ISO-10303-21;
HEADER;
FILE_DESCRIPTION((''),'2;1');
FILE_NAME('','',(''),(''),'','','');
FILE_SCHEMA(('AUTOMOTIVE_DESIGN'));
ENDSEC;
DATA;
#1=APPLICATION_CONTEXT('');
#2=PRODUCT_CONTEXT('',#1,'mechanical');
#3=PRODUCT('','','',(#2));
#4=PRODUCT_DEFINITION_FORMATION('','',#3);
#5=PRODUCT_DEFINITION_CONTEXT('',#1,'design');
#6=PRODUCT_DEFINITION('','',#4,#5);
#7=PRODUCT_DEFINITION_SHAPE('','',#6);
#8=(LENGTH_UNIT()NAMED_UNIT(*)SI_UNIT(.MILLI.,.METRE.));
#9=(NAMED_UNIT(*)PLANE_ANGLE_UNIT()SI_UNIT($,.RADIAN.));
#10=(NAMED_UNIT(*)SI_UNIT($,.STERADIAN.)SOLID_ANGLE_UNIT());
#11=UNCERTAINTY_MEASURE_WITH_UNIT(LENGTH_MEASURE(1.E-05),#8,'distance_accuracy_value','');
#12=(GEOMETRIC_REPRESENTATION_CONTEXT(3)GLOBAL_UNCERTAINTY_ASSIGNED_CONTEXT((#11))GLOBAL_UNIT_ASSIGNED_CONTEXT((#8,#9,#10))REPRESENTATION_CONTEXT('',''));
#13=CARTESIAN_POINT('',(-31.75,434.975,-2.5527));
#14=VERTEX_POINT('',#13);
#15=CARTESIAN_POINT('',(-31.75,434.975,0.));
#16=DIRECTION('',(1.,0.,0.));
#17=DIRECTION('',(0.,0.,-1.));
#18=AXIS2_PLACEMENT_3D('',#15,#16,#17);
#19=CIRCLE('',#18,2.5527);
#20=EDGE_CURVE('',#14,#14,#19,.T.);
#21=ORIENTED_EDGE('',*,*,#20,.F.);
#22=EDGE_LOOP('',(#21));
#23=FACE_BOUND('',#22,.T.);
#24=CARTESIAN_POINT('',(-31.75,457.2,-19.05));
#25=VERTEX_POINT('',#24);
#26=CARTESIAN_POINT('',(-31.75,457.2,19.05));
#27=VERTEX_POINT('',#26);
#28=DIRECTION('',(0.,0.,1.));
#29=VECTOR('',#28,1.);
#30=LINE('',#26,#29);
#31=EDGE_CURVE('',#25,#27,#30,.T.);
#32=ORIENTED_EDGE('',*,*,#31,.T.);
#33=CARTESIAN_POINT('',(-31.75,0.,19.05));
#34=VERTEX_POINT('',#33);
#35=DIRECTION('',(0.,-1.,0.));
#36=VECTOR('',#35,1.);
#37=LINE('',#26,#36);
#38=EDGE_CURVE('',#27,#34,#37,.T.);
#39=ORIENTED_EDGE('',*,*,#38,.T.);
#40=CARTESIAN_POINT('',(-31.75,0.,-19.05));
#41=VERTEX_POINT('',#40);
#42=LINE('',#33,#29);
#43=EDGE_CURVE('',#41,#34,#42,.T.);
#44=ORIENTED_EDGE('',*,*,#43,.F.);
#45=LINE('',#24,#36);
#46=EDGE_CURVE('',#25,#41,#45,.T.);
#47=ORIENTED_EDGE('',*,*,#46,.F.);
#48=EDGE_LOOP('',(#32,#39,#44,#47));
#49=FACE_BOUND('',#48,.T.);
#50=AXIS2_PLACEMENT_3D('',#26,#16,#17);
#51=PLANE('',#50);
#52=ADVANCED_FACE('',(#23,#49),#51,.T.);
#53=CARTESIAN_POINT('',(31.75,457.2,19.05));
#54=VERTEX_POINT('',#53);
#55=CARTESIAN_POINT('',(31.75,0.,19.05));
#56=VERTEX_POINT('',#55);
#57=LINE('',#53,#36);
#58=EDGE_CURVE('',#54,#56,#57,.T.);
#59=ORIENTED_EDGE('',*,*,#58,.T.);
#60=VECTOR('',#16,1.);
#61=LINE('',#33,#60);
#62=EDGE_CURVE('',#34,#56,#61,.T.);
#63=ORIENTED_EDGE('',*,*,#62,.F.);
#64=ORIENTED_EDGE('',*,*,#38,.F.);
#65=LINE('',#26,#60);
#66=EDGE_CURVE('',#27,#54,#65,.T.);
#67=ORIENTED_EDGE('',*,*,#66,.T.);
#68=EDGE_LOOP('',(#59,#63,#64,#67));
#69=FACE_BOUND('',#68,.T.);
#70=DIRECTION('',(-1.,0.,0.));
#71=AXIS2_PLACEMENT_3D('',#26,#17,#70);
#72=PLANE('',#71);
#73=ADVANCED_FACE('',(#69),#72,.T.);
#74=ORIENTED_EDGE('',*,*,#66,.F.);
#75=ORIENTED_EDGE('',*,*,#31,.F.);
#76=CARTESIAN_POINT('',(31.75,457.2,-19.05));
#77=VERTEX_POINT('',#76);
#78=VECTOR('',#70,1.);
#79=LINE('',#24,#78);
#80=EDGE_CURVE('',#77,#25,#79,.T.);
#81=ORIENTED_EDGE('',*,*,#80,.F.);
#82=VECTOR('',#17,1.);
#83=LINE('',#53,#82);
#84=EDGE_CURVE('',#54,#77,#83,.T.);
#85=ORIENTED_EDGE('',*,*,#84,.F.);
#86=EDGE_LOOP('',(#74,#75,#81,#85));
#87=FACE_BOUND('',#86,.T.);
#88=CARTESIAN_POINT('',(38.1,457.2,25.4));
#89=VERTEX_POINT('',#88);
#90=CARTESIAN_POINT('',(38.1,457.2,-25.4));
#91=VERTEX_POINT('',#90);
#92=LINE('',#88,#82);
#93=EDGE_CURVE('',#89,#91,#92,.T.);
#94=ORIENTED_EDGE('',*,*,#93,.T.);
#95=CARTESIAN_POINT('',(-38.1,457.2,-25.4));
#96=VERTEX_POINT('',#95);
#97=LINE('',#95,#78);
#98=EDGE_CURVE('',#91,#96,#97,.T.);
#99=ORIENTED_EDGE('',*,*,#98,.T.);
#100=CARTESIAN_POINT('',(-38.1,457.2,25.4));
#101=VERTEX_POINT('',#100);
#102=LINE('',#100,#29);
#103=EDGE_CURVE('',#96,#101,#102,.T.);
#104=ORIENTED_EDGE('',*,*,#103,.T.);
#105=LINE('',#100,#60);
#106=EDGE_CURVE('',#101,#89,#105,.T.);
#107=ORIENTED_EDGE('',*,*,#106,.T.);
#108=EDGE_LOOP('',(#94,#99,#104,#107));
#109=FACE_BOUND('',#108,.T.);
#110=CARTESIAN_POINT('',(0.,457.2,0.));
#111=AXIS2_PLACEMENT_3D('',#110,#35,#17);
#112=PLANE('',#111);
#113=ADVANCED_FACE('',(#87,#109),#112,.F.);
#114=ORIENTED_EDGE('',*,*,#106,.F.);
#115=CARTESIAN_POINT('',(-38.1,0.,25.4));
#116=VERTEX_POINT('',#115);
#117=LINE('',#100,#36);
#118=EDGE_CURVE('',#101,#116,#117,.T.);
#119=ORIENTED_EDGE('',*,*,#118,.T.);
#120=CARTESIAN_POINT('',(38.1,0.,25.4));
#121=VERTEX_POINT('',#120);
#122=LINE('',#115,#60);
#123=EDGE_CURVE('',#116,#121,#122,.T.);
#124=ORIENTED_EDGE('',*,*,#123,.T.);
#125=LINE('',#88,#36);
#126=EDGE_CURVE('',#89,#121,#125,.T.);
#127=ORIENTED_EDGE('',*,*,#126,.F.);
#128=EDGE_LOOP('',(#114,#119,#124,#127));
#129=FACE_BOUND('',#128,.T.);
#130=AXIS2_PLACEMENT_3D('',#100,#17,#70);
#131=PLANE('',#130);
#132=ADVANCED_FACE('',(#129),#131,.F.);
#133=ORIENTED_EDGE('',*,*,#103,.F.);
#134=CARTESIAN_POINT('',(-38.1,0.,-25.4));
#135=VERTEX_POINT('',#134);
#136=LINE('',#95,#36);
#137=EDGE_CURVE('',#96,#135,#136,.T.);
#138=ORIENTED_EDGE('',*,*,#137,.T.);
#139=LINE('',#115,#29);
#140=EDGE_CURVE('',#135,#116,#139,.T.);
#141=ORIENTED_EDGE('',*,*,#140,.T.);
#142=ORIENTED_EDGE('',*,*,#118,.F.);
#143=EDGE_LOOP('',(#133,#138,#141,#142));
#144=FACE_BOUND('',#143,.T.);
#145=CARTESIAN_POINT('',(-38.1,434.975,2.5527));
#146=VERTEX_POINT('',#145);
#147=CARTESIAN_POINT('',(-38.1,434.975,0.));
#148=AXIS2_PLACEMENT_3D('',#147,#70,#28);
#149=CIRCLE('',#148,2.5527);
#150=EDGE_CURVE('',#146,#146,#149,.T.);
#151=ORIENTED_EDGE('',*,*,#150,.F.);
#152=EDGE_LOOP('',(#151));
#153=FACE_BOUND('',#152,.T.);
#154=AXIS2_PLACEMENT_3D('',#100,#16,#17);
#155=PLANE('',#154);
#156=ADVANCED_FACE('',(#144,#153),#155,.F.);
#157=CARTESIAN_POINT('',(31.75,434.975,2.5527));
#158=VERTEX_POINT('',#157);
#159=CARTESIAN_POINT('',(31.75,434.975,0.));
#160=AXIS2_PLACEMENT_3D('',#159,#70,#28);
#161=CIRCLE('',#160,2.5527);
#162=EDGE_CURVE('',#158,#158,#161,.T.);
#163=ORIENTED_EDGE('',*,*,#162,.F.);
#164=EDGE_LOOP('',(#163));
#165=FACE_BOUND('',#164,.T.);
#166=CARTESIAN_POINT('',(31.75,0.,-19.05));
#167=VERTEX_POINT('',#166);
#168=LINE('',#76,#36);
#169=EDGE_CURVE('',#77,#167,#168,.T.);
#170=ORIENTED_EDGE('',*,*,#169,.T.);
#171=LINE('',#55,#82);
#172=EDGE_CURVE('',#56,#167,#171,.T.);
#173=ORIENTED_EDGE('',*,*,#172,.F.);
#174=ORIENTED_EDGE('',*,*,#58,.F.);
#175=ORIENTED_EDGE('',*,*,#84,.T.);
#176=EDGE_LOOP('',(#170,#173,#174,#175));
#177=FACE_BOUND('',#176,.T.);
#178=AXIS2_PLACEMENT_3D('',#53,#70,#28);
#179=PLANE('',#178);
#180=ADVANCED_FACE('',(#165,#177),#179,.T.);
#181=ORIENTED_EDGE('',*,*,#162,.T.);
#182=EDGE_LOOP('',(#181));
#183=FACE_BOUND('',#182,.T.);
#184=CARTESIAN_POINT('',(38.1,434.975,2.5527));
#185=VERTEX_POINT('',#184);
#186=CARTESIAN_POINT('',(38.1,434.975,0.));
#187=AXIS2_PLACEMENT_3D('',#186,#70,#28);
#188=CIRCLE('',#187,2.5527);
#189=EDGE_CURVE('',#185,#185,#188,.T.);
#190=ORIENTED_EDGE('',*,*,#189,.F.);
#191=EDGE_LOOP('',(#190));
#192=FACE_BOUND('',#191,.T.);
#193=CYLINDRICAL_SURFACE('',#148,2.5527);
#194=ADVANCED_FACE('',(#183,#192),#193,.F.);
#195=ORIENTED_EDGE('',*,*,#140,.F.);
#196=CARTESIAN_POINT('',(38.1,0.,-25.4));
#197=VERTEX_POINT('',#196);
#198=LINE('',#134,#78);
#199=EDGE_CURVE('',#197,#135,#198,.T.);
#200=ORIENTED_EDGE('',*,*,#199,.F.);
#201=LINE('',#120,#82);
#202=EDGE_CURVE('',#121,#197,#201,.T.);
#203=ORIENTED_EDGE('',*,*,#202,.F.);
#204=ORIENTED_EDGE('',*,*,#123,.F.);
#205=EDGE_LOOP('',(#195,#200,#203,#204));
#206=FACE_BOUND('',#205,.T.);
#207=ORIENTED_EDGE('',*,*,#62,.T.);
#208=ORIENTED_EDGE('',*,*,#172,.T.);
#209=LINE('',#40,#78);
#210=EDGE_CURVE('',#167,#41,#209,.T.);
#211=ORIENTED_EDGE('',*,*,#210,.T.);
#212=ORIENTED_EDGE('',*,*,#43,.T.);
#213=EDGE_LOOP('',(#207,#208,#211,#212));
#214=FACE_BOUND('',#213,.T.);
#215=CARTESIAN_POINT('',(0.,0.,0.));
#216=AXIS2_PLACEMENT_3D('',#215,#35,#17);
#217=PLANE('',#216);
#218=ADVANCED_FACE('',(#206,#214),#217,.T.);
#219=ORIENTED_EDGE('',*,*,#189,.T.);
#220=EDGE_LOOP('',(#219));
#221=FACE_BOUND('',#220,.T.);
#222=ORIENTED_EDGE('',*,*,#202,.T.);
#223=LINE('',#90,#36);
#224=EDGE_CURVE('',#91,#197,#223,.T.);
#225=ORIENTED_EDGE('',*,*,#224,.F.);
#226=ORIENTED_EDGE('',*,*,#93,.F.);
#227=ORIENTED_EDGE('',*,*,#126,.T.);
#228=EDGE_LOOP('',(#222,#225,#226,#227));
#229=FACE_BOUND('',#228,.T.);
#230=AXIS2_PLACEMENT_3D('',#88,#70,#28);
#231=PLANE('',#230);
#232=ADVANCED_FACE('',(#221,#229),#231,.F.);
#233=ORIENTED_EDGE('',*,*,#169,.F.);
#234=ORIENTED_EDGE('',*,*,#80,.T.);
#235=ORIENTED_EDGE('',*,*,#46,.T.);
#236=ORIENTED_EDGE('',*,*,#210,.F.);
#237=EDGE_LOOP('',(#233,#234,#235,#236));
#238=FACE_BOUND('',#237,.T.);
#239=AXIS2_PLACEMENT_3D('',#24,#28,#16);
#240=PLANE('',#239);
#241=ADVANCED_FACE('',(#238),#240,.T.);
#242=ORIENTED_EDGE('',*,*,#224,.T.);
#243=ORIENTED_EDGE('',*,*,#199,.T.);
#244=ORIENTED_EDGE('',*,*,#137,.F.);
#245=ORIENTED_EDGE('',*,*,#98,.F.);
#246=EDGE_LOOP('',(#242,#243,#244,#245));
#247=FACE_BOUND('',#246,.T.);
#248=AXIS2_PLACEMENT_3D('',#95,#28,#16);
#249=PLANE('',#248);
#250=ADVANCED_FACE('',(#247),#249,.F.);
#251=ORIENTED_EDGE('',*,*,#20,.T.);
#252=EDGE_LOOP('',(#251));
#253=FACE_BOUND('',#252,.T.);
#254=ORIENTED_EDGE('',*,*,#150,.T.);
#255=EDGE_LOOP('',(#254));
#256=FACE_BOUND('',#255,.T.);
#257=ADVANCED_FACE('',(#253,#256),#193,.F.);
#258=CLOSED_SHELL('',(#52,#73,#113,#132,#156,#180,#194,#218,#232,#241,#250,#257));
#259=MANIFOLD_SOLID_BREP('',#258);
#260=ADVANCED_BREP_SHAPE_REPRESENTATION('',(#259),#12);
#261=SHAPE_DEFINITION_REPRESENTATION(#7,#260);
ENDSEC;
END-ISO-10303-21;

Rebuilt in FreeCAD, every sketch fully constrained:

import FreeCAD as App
import Part
import Sketcher
from FreeCAD import Vector
Q = App.Units.Quantity


def add_polygon(sketch, points):
    """Adds a closed chain of lines whose ends are joined by coincident constraints."""
    first, n = sketch.GeometryCount, len(points)
    for a, b in zip(points, points[1:] + points[:1]):
        sketch.addGeometry(Part.LineSegment(App.Vector(*a, 0), App.Vector(*b, 0)), False)
    for i in range(n):
        sketch.addConstraint(Sketcher.Constraint("Coincident", first + i, 2, first + (i + 1) % n, 1))

doc = App.newDocument("Part")
params = doc.addObject("Spreadsheet::Sheet", "Params")
for row, (alias, value) in enumerate([
    ("sketch1_width", "3 in"),
    ("sketch1_height", "2 in"),
    ("sketch1_width2", "2.5 in"),
    ("sketch1_height2", "1.5 in"),
    ("pad1_length", "18 in"),
    ("sketch2_diameter", "0.201 in"),
    ("hole_diameter", "0.201 in"),
], start=1):
    params.set(f"A{row}", alias)
    params.set(f"B{row}", "=" + value)
    params.setAlias(f"B{row}", alias)

body = doc.addObject("PartDesign::Body", "Body")

sketch1 = doc.addObject("Sketcher::SketchObject", "Sketch")
body.addObject(sketch1)
sketch1.AttachmentSupport = (doc.XZ_Plane, [""])
sketch1.MapMode = "FlatFace"
add_polygon(sketch1, [(-38, -25), (-38, 25), (38, 25), (38, -25)])
add_polygon(sketch1, [(32, 19), (-32, 19), (-32, -19), (32, -19)])
sketch1.addConstraint([
    Sketcher.Constraint("Vertical", 0),
    Sketcher.Constraint("Horizontal", 1),
    Sketcher.Constraint("Vertical", 2),
    Sketcher.Constraint("Horizontal", 3),
    Sketcher.Constraint("Horizontal", 4),
    Sketcher.Constraint("Vertical", 5),
    Sketcher.Constraint("Horizontal", 6),
    Sketcher.Constraint("Vertical", 7),
    Sketcher.Constraint("Symmetric", 0, 2, 2, 2, -1, 1),
    Sketcher.Constraint("Symmetric", 4, 2, 6, 2, -1, 1),
    Sketcher.Constraint("DistanceX", 1, 1, 1, 2, Q("3 in")),
    Sketcher.Constraint("DistanceY", 0, 1, 0, 2, Q("2 in")),
    Sketcher.Constraint("DistanceX", 4, 2, 4, 1, Q("2.5 in")),
    Sketcher.Constraint("DistanceY", 5, 2, 5, 1, Q("1.5 in")),
])
sketch1.setExpression("Constraints[18]", "Params.sketch1_width")
sketch1.setExpression("Constraints[19]", "Params.sketch1_height")
sketch1.setExpression("Constraints[20]", "Params.sketch1_width2")
sketch1.setExpression("Constraints[21]", "Params.sketch1_height2")
pad1 = doc.addObject("PartDesign::Pad", "Pad")
body.addObject(pad1)
pad1.Profile = sketch1
pad1.setExpression("Length", "Params.pad1_length")
pad1.Reversed = True

sketch2 = doc.addObject("Sketcher::SketchObject", "Sketch001")
body.addObject(sketch2)
sketch2.AttachmentSupport = (doc.YZ_Plane, [""])
sketch2.MapMode = "FlatFace"
sketch2.AttachmentOffset = App.Placement(Vector(0, 0, -1.5 * 25.4), App.Rotation())
sketch2.addGeometry(Part.Circle(Vector(435, 0, 0), Vector(0, 0, 1), 2.6), False)
sketch2.addConstraint([
    Sketcher.Constraint("PointOnObject", 0, 3, -1),
    Sketcher.Constraint("Diameter", 0, Q("0.201 in")),
    Sketcher.Constraint("DistanceX", -1, 1, 0, 3, Q("17.125 in")),
])
sketch2.setExpression("Constraints[1]", "Params.sketch2_diameter")
doc.recompute()
hole = doc.addObject("PartDesign::Hole", "Hole")
body.addObject(hole)
hole.Profile = sketch2
hole.ThreadType = "None"
hole.setExpression("Diameter", "Params.hole_diameter")
hole.DepthType = "ThroughAll"
hole.Reversed = True

doc.recompute()
